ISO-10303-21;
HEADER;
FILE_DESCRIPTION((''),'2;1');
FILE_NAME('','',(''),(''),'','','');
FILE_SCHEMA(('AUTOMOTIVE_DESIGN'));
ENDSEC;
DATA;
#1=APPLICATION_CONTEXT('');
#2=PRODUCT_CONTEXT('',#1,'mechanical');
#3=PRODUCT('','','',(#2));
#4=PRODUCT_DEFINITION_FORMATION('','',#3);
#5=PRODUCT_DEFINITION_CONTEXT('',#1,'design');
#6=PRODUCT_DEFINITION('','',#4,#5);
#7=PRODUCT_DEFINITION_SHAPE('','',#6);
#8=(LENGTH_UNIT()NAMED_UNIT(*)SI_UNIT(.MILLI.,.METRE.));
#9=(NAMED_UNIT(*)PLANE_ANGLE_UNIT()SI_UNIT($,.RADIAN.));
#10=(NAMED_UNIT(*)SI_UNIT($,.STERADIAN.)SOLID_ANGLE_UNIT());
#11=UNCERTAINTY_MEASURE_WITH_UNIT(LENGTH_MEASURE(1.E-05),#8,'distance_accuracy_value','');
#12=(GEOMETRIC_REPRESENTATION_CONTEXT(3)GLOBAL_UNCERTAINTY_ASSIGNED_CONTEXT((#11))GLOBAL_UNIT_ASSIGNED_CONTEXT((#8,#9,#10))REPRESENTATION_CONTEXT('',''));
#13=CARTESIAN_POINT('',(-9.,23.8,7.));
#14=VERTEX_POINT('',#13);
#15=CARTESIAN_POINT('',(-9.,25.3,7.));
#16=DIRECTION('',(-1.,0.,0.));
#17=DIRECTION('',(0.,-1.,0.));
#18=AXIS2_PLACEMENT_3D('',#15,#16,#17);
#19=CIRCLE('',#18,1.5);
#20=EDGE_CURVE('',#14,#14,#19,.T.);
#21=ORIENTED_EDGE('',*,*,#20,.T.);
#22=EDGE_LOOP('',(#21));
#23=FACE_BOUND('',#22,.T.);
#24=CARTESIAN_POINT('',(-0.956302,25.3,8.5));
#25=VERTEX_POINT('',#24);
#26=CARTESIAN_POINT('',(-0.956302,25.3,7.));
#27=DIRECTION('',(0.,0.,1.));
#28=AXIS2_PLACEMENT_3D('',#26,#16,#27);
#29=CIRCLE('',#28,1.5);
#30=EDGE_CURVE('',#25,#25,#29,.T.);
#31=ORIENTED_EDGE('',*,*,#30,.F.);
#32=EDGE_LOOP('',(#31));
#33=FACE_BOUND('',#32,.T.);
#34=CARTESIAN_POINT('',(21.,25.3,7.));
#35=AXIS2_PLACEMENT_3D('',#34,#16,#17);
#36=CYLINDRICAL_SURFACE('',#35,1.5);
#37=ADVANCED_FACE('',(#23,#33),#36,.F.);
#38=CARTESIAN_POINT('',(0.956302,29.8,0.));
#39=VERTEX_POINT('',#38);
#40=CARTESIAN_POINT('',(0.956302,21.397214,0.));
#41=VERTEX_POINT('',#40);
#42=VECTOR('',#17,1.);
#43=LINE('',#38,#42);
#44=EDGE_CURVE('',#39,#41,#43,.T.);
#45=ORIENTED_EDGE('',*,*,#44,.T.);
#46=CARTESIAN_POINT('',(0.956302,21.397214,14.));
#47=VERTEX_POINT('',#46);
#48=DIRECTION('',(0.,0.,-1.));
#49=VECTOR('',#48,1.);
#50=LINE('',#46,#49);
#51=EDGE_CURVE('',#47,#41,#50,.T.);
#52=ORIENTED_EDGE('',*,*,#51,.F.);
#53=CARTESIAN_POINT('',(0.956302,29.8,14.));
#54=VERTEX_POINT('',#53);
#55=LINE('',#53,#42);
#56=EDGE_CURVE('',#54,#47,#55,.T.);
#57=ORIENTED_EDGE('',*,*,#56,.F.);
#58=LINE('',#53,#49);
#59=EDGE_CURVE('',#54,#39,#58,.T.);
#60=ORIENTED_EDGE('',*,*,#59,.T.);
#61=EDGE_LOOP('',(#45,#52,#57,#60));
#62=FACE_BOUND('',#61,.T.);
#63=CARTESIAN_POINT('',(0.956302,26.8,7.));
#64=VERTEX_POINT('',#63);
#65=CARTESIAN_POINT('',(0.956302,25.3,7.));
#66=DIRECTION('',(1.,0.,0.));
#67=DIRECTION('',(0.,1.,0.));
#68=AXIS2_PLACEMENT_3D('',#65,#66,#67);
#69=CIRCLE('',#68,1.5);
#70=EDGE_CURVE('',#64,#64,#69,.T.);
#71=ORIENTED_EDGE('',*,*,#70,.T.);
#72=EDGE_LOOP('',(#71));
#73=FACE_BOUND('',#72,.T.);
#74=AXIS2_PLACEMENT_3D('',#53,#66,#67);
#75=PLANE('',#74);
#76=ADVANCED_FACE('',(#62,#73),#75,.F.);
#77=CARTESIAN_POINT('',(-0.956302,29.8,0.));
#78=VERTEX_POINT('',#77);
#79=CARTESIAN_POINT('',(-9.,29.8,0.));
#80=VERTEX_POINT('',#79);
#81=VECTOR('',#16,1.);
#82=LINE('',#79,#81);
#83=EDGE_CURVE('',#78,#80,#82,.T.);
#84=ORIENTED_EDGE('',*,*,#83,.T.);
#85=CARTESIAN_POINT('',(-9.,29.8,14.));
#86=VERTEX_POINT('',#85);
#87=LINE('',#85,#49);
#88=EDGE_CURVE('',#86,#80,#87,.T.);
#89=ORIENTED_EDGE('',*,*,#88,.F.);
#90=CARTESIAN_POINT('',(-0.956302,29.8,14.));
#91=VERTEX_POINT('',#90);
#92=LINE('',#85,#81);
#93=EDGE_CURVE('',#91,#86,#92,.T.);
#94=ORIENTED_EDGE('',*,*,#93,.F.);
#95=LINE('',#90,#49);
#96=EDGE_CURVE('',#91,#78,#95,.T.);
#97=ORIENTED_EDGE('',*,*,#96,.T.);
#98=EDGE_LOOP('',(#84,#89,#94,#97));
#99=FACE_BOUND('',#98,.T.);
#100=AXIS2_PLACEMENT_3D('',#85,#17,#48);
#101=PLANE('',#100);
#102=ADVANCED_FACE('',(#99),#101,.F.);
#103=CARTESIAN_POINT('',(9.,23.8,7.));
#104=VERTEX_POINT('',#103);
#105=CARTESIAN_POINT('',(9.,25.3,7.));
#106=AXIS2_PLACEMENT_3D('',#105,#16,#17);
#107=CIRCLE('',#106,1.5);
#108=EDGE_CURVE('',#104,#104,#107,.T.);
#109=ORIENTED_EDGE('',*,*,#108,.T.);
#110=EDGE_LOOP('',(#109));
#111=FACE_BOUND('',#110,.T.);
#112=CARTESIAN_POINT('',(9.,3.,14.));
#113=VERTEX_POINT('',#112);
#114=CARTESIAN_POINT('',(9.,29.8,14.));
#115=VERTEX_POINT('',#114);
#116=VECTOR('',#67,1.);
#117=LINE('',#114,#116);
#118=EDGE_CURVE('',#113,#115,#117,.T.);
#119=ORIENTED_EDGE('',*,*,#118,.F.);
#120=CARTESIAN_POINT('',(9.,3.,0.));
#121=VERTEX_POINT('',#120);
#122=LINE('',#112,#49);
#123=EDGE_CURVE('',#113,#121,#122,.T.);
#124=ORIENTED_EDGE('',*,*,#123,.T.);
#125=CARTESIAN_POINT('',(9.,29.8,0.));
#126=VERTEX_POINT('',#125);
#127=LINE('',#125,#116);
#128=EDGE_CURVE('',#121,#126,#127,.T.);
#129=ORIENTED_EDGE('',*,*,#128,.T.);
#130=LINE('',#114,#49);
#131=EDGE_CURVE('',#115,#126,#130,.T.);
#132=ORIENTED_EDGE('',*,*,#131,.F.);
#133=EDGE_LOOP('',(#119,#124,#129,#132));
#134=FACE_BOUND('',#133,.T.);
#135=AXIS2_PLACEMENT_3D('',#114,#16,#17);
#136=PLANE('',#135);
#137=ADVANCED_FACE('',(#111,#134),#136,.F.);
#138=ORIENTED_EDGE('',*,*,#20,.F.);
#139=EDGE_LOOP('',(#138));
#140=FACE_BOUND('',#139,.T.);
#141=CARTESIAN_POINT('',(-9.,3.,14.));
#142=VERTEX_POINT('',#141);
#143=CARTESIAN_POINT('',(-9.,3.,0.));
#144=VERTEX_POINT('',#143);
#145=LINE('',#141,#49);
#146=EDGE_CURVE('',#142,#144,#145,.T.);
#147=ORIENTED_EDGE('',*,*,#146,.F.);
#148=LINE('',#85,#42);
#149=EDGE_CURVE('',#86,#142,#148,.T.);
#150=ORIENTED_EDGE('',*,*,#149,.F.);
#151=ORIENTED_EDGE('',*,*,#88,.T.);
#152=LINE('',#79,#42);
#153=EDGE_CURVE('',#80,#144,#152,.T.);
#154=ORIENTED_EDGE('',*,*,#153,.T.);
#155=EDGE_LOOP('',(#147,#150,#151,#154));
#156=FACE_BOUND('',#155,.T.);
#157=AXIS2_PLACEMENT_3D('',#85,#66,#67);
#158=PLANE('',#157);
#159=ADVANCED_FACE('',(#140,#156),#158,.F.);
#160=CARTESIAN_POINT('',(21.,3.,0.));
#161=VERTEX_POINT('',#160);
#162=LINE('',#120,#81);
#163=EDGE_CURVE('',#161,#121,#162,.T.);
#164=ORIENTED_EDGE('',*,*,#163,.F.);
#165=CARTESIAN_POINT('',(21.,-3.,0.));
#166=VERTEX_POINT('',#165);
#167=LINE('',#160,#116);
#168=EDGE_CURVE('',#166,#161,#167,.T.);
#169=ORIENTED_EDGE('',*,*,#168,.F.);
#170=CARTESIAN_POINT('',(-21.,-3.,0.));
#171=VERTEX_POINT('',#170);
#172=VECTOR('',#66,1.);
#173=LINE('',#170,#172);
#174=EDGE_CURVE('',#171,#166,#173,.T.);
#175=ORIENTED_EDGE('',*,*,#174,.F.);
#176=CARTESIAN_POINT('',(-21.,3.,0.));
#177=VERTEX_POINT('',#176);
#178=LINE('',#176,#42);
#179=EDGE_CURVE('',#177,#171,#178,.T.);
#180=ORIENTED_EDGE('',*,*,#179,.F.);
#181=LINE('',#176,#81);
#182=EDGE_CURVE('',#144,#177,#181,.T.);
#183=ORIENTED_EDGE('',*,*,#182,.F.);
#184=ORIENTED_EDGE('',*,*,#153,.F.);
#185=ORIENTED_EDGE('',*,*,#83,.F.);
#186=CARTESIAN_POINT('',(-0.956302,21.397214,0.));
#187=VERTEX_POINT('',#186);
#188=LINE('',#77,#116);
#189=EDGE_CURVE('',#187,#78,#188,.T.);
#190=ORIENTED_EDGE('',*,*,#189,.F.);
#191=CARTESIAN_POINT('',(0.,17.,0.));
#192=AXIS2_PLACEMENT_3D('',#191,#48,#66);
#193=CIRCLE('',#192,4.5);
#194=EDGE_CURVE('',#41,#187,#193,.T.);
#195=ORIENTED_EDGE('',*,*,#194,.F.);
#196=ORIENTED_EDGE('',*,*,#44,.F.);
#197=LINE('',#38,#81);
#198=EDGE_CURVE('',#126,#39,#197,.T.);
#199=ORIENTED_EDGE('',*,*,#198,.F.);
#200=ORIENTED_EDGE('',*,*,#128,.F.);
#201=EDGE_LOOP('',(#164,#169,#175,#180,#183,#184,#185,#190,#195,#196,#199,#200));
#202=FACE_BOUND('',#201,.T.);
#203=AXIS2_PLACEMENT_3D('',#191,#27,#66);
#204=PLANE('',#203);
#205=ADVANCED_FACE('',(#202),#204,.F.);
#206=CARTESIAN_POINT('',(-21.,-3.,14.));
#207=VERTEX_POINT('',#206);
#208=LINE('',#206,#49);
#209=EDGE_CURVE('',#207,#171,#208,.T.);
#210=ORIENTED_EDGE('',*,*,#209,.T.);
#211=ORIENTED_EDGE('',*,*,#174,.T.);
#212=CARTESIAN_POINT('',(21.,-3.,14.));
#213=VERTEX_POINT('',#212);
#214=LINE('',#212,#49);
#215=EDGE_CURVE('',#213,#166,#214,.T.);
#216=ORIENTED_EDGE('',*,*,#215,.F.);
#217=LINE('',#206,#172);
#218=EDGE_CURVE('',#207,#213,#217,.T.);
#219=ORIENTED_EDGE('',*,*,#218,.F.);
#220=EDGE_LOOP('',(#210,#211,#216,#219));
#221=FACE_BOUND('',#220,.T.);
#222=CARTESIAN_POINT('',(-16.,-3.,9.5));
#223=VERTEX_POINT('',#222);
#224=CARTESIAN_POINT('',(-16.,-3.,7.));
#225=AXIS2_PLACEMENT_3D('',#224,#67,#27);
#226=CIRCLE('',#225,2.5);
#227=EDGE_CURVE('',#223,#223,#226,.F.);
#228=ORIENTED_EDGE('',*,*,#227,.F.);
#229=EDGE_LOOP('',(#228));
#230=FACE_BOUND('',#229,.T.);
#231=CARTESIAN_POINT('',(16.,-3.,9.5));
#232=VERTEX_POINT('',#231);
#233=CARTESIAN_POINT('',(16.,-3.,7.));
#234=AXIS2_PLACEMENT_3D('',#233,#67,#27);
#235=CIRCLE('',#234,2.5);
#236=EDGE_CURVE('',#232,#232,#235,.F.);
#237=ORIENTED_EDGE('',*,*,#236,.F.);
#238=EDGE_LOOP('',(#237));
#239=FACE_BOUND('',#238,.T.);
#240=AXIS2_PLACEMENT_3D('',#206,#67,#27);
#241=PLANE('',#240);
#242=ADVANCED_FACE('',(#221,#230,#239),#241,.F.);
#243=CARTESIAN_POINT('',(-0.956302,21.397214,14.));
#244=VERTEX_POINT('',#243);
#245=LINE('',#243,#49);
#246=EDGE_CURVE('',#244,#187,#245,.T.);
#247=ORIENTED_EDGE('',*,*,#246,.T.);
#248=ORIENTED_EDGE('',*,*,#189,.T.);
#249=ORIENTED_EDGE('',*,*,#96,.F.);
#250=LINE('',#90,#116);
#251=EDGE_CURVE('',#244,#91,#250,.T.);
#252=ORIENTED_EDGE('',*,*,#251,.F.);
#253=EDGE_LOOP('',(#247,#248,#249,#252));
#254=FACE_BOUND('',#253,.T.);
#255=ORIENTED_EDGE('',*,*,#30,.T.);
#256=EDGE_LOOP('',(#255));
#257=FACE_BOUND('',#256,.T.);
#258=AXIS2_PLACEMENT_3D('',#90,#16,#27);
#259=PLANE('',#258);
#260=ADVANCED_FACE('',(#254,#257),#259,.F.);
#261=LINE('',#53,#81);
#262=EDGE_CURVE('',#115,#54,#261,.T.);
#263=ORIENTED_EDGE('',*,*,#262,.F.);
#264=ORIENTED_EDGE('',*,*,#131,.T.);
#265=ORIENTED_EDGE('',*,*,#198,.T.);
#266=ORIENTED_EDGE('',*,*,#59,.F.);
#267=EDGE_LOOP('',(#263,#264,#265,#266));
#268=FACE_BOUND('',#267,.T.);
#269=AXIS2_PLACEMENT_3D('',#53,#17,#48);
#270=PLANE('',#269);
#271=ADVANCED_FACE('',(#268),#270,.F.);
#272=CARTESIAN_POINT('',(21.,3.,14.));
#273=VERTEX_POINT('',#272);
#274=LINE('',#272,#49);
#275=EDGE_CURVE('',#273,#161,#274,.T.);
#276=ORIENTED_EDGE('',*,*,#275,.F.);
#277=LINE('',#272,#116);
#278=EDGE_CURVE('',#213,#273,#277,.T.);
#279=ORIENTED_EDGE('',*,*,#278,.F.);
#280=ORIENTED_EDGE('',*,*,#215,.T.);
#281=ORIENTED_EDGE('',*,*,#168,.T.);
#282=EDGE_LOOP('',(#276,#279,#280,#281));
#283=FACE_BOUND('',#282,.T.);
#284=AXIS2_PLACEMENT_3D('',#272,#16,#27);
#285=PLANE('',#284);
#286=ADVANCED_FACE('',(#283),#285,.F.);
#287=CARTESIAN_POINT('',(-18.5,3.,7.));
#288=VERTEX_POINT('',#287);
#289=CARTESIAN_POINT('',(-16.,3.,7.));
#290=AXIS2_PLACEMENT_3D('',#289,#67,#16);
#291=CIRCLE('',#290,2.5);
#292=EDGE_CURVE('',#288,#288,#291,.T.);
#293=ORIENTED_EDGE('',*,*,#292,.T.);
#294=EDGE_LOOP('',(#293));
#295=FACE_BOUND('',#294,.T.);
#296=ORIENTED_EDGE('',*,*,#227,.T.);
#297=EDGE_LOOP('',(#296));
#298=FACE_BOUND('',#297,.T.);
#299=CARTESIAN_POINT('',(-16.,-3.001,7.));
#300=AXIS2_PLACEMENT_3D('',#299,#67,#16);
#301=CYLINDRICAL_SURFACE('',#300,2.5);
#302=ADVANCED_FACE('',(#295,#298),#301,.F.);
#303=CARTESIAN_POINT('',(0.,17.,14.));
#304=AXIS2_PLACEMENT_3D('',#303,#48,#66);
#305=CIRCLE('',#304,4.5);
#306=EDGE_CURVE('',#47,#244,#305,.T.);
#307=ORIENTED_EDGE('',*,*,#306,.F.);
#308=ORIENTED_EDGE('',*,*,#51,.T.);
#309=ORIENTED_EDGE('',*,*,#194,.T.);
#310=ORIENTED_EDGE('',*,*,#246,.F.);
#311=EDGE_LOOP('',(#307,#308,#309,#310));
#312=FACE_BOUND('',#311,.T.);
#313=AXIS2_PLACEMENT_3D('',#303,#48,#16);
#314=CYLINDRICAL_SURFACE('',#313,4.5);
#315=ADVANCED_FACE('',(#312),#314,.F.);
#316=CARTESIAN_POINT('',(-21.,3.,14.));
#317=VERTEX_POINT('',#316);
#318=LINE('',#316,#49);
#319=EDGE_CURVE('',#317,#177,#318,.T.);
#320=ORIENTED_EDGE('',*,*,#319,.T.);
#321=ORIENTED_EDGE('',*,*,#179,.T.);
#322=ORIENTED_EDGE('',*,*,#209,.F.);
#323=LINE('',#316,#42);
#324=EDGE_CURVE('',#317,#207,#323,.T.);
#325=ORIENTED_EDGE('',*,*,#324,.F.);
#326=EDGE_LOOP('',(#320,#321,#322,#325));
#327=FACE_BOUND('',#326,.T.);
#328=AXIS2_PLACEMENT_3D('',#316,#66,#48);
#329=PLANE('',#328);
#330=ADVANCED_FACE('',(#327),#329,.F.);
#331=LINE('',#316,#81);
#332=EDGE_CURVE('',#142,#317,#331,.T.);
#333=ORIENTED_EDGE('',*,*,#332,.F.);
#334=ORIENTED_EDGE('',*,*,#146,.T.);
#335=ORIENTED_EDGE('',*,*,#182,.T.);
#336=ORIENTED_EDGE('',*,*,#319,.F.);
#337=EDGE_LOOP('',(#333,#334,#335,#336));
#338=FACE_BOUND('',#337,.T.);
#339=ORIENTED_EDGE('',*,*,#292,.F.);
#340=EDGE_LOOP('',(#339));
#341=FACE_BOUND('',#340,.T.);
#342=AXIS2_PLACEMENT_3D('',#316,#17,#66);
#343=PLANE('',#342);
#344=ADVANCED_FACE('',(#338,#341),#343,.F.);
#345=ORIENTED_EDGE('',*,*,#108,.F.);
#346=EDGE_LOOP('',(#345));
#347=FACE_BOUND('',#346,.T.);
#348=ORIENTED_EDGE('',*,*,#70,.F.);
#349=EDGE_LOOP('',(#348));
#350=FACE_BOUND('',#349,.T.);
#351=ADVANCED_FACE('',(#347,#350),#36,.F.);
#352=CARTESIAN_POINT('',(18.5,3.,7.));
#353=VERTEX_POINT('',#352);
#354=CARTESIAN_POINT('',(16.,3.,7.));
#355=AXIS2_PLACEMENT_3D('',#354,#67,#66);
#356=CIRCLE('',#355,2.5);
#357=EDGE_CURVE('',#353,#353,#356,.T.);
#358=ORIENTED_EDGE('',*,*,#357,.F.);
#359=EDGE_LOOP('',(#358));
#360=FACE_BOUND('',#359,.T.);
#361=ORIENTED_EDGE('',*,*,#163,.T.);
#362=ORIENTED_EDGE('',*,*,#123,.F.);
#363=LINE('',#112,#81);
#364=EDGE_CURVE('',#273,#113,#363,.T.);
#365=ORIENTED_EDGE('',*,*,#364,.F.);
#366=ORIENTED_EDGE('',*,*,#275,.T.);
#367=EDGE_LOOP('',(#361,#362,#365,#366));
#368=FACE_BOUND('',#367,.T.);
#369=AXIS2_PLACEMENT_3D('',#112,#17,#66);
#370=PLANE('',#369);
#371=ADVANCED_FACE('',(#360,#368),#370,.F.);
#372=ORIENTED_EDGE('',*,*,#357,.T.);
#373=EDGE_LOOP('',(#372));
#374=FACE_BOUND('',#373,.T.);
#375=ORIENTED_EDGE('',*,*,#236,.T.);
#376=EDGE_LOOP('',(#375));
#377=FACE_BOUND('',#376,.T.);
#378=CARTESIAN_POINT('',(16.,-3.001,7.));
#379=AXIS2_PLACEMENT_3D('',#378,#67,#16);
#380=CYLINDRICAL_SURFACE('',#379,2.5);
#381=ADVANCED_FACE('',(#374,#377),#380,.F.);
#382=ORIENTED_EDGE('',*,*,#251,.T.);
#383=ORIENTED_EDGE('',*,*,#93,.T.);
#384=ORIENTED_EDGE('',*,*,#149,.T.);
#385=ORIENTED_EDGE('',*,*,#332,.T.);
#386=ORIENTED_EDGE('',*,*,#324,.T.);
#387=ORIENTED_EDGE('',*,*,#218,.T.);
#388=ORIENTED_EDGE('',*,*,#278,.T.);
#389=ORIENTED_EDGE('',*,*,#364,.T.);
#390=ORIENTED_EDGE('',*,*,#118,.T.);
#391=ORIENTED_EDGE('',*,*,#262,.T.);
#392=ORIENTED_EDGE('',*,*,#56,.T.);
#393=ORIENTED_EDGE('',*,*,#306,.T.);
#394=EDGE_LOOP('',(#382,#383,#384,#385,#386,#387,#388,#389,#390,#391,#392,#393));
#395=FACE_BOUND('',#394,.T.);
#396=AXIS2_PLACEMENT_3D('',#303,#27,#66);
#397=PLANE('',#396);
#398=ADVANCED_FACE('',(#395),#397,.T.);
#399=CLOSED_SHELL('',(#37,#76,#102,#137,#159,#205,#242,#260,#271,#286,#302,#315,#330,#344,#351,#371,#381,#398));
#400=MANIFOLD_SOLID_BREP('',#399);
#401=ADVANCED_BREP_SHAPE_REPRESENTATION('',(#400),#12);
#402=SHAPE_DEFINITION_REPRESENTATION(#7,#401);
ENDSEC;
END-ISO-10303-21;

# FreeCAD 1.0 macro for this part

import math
import FreeCAD as App
import Part
import Sketcher
Q = App.Units.Quantity

doc = App.newDocument("Part")
body = doc.addObject("PartDesign::Body", "Body")

sketch1 = body.newObject("Sketcher::SketchObject", "Sketch")
sketch1.AttachmentSupport = (doc.getObject("XY_Plane"), [""])
sketch1.MapMode = "FlatFace"
sketch1.addGeometry(Part.LineSegment(App.Vector(-1, 21.4, 0), App.Vector(-1, 29.8, 0)), False)
sketch1.addGeometry(Part.LineSegment(App.Vector(-1, 29.8, 0), App.Vector(-9, 29.8, 0)), False)
sketch1.addGeometry(Part.LineSegment(App.Vector(-9, 29.8, 0), App.Vector(-9, 3, 0)), False)
sketch1.addGeometry(Part.LineSegment(App.Vector(-9, 3, 0), App.Vector(-21, 3, 0)), False)
sketch1.addGeometry(Part.LineSegment(App.Vector(-21, 3, 0), App.Vector(-21, -3, 0)), False)
sketch1.addGeometry(Part.LineSegment(App.Vector(-21, -3, 0), App.Vector(21, -3, 0)), False)
sketch1.addGeometry(Part.LineSegment(App.Vector(21, -3, 0), App.Vector(21, 3, 0)), False)
sketch1.addGeometry(Part.LineSegment(App.Vector(21, 3, 0), App.Vector(9, 3, 0)), False)
sketch1.addGeometry(Part.LineSegment(App.Vector(9, 3, 0), App.Vector(9, 29.8, 0)), False)
sketch1.addGeometry(Part.LineSegment(App.Vector(9, 29.8, 0), App.Vector(1, 29.8, 0)), False)
sketch1.addGeometry(Part.LineSegment(App.Vector(1, 29.8, 0), App.Vector(1, 21.4, 0)), False)
sketch1.addGeometry(Part.ArcOfCircle(Part.Circle(App.Vector(0, 17, 0), App.Vector(0, 0, 1), 4.5), math.radians(102), math.radians(438)), False)
sketch1.addConstraint(Sketcher.Constraint("Coincident", 0, 2, 1, 1))
sketch1.addConstraint(Sketcher.Constraint("Coincident", 1, 2, 2, 1))
sketch1.addConstraint(Sketcher.Constraint("Coincident", 2, 2, 3, 1))
sketch1.addConstraint(Sketcher.Constraint("Coincident", 3, 2, 4, 1))
sketch1.addConstraint(Sketcher.Constraint("Coincident", 4, 2, 5, 1))
sketch1.addConstraint(Sketcher.Constraint("Coincident", 5, 2, 6, 1))
sketch1.addConstraint(Sketcher.Constraint("Coincident", 6, 2, 7, 1))
sketch1.addConstraint(Sketcher.Constraint("Coincident", 7, 2, 8, 1))
sketch1.addConstraint(Sketcher.Constraint("Coincident", 8, 2, 9, 1))
sketch1.addConstraint(Sketcher.Constraint("Coincident", 9, 2, 10, 1))
sketch1.addConstraint(Sketcher.Constraint("Coincident", 10, 2, 11, 2))
sketch1.addConstraint(Sketcher.Constraint("Coincident", 11, 1, 0, 1))
sketch1.addConstraint(Sketcher.Constraint("Vertical", 0))
sketch1.addConstraint(Sketcher.Constraint("Horizontal", 1))
sketch1.addConstraint(Sketcher.Constraint("Vertical", 2))
sketch1.addConstraint(Sketcher.Constraint("Horizontal", 3))
sketch1.addConstraint(Sketcher.Constraint("Vertical", 4))
sketch1.addConstraint(Sketcher.Constraint("Horizontal", 5))
sketch1.addConstraint(Sketcher.Constraint("Vertical", 6))
sketch1.addConstraint(Sketcher.Constraint("Horizontal", 7))
sketch1.addConstraint(Sketcher.Constraint("Vertical", 8))
sketch1.addConstraint(Sketcher.Constraint("Horizontal", 9))
sketch1.addConstraint(Sketcher.Constraint("Vertical", 10))
sketch1.addConstraint(Sketcher.Constraint("Symmetric", 3, 2, 5, 2, -1, 1))
sketch1.addConstraint(Sketcher.Constraint("Symmetric", 2, 2, 7, 2, -2))
sketch1.addConstraint(Sketcher.Constraint("Symmetric", 0, 2, 9, 2, -2))
sketch1.addConstraint(Sketcher.Constraint("PointOnObject", 11, 3, -2))
sketch1.addConstraint(Sketcher.Constraint("Radius", 11, Q("4.5 mm")))
sketch1.addConstraint(Sketcher.Constraint("DistanceX", 3, 2, 3, 1, Q("12 mm")))
sketch1.addConstraint(Sketcher.Constraint("DistanceX", 5, 1, 5, 2, Q("42 mm")))
sketch1.addConstraint(Sketcher.Constraint("DistanceY", 4, 2, 4, 1, Q("6 mm")))
sketch1.addConstraint(Sketcher.Constraint("DistanceY", 2, 2, 2, 1, Q("26.8 mm")))
sketch1.addConstraint(Sketcher.Constraint("DistanceY", -1, 1, 11, 3, Q("17 mm")))
sketch1.addConstraint(Sketcher.Constraint("DistanceX", 1, 2, 1, 1, Q("8.043698 mm")))
pad1 = body.newObject("PartDesign::Pad", "Pad")
pad1.Profile = sketch1
pad1.Length = 14

sketch2 = body.newObject("Sketcher::SketchObject", "Sketch001")
sketch2.AttachmentSupport = (doc.getObject("XZ_Plane"), [""])
sketch2.MapMode = "FlatFace"
sketch2.AttachmentOffset = App.Placement(App.Vector(0, 0, -3), App.Rotation())
sketch2.addGeometry(Part.Circle(App.Vector(-16, 7, 0), App.Vector(0, 0, 1), 2.5), False)
sketch2.addConstraint(Sketcher.Constraint("Diameter", 0, Q("5 mm")))
sketch2.addConstraint(Sketcher.Constraint("DistanceX", 0, 3, -1, 1, Q("16 mm")))
sketch2.addConstraint(Sketcher.Constraint("DistanceY", -1, 1, 0, 3, Q("7 mm")))
pocket1 = body.newObject("PartDesign::Pocket", "Pocket")
pocket1.Profile = sketch2
pocket1.Type = "UpToFirst"
pocket1.Reversed = True

sketch3 = body.newObject("Sketcher::SketchObject", "Sketch002")
sketch3.AttachmentSupport = (doc.getObject("XZ_Plane"), [""])
sketch3.MapMode = "FlatFace"
sketch3.AttachmentOffset = App.Placement(App.Vector(0, 0, -3), App.Rotation())
sketch3.addGeometry(Part.Circle(App.Vector(16, 7, 0), App.Vector(0, 0, 1), 2.5), False)
sketch3.addConstraint(Sketcher.Constraint("Diameter", 0, Q("5 mm")))
sketch3.addConstraint(Sketcher.Constraint("DistanceX", -1, 1, 0, 3, Q("16 mm")))
sketch3.addConstraint(Sketcher.Constraint("DistanceY", -1, 1, 0, 3, Q("7 mm")))
pocket2 = body.newObject("PartDesign::Pocket", "Pocket001")
pocket2.Profile = sketch3
pocket2.Type = "UpToFirst"
pocket2.Reversed = True

sketch4 = body.newObject("Sketcher::SketchObject", "Sketch003")
sketch4.AttachmentSupport = (doc.getObject("YZ_Plane"), [""])
sketch4.MapMode = "FlatFace"
sketch4.AttachmentOffset = App.Placement(App.Vector(0, 0, -9), App.Rotation())
sketch4.addGeometry(Part.Circle(App.Vector(25.3, 7, 0), App.Vector(0, 0, 1), 1.5), False)
sketch4.addConstraint(Sketcher.Constraint("Diameter", 0, Q("3 mm")))
sketch4.addConstraint(Sketcher.Constraint("DistanceY", -1, 1, 0, 3, Q("7 mm")))
sketch4.addConstraint(Sketcher.Constraint("DistanceX", -1, 1, 0, 3, Q("25.3 mm")))
pocket3 = body.newObject("PartDesign::Pocket", "Pocket002")
pocket3.Profile = sketch4
pocket3.Type = "ThroughAll"
pocket3.Reversed = True

doc.recompute()
